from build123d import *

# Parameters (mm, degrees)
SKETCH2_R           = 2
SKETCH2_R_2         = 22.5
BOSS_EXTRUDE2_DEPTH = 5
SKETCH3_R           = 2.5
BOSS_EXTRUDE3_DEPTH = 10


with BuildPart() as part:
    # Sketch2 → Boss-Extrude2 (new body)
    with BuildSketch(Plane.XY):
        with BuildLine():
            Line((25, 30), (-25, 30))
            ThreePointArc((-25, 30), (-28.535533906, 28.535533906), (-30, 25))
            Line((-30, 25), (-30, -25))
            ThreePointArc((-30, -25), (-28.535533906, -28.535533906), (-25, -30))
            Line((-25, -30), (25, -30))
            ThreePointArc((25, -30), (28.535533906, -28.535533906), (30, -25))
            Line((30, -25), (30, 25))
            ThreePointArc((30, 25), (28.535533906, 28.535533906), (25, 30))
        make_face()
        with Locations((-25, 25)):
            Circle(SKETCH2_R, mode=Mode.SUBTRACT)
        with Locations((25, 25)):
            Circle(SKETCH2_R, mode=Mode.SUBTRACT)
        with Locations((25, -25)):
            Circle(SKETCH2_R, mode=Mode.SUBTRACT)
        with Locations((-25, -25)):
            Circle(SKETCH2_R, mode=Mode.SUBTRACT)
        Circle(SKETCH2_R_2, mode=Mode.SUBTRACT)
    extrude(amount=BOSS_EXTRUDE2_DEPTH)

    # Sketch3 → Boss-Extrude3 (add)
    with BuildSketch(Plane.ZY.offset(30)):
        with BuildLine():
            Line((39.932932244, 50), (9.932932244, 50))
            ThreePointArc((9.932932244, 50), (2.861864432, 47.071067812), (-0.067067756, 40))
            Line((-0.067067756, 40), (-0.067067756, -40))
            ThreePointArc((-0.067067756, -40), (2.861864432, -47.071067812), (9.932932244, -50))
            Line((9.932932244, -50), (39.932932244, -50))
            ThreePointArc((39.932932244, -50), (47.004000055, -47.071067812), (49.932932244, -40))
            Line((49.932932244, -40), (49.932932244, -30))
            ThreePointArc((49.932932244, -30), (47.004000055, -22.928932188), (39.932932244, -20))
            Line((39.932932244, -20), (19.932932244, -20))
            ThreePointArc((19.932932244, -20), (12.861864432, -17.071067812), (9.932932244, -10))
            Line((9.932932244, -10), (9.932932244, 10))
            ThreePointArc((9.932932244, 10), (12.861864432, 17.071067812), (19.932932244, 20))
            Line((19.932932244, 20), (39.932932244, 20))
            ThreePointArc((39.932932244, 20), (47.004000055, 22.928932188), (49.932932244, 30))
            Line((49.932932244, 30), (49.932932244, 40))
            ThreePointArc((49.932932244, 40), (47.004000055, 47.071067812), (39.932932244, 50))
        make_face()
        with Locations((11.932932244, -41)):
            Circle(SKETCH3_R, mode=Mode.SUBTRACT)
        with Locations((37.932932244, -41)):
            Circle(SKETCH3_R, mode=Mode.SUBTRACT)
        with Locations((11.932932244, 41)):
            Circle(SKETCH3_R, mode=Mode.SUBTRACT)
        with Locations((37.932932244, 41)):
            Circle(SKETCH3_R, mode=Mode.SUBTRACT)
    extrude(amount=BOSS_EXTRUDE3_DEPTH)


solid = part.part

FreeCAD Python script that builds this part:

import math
import FreeCAD as App
import Part
import Sketcher
Q = App.Units.Quantity

doc = App.newDocument("Part")
body = doc.addObject("PartDesign::Body", "Body")

# Sketch on XY plane
sketch1 = body.newObject("Sketcher::SketchObject", "Sketch")
sketch1.AttachmentSupport = (doc.getObject("XY_Plane"), [""])
sketch1.MapMode = "FlatFace"
sketch1.addGeometry([
    Part.LineSegment(App.Vector(25, 30, 0), App.Vector(-25, 30, 0)),  # 0
    Part.ArcOfCircle(Part.Circle(App.Vector(-25, 25, 0), App.Vector(0, 0, 1), 5), math.radians(90), math.radians(180)),  # 1
    Part.LineSegment(App.Vector(-30, 25, 0), App.Vector(-30, -25, 0)),  # 2
    Part.ArcOfCircle(Part.Circle(App.Vector(-25, -25, 0), App.Vector(0, 0, 1), 5), math.radians(180), math.radians(270)),  # 3
    Part.LineSegment(App.Vector(-25, -30, 0), App.Vector(25, -30, 0)),  # 4
    Part.ArcOfCircle(Part.Circle(App.Vector(25, -25, 0), App.Vector(0, 0, 1), 5), math.radians(-90), math.radians(0)),  # 5
    Part.LineSegment(App.Vector(30, -25, 0), App.Vector(30, 25, 0)),  # 6
    Part.ArcOfCircle(Part.Circle(App.Vector(25, 25, 0), App.Vector(0, 0, 1), 5), math.radians(0), math.radians(90)),  # 7
    Part.Circle(App.Vector(-25, -25, 0), App.Vector(0, 0, 1), 2),  # 8
    Part.Circle(App.Vector(25, -25, 0), App.Vector(0, 0, 1), 2),  # 9
    Part.Circle(App.Vector(-25, 25, 0), App.Vector(0, 0, 1), 2),  # 10
    Part.Circle(App.Vector(0, 0, 0), App.Vector(0, 0, 1), 22.5),  # 11
    Part.Circle(App.Vector(25, 25, 0), App.Vector(0, 0, 1), 2),  # 12
], False)
sketch1.addConstraint([
    Sketcher.Constraint("Tangent", 0, 2, 1, 1),
    Sketcher.Constraint("Tangent", 1, 2, 2, 1),
    Sketcher.Constraint("Tangent", 2, 2, 3, 1),
    Sketcher.Constraint("Tangent", 3, 2, 4, 1),
    Sketcher.Constraint("Tangent", 4, 2, 5, 1),
    Sketcher.Constraint("Tangent", 5, 2, 6, 1),
    Sketcher.Constraint("Tangent", 6, 2, 7, 1),
    Sketcher.Constraint("Tangent", 7, 2, 0, 1),
    Sketcher.Constraint("Horizontal", 0),
    Sketcher.Constraint("Vertical", 2),
    Sketcher.Constraint("Horizontal", 4),
    Sketcher.Constraint("Vertical", 6),
    Sketcher.Constraint("Coincident", 11, 3, -1, 1),
    Sketcher.Constraint("Coincident", 8, 3, 3, 3),
    Sketcher.Constraint("Coincident", 9, 3, 5, 3),
    Sketcher.Constraint("Coincident", 10, 3, 1, 3),
    Sketcher.Constraint("Coincident", 12, 3, 7, 3),
    Sketcher.Constraint("Equal", 1, 3),
    Sketcher.Constraint("Equal", 3, 5),
    Sketcher.Constraint("Equal", 5, 7),
    Sketcher.Constraint("Equal", 8, 9),
    Sketcher.Constraint("Equal", 9, 10),
    Sketcher.Constraint("Equal", 10, 12),
    Sketcher.Constraint("Symmetric", 1, 3, 5, 3, -1, 1),
    Sketcher.Constraint("Equal", 4, 2),
    Sketcher.Constraint("Diameter", 8, Q("4 mm")),
    Sketcher.Constraint("Diameter", 11, Q("45 mm")),
    Sketcher.Constraint("Radius", 1, Q("5 mm")),
    Sketcher.Constraint("DistanceX", 0, 2, 0, 1, Q("50 mm")),
])
pad1 = body.newObject("PartDesign::Pad", "Pad")
pad1.Profile = sketch1
pad1.Length = 5

# Sketch on YZ plane
sketch2 = body.newObject("Sketcher::SketchObject", "Sketch001")
sketch2.AttachmentSupport = (doc.getObject("YZ_Plane"), [""])
sketch2.MapMode = "FlatFace"
sketch2.AttachmentOffset = App.Placement(App.Vector(0, 0, -30), App.Rotation())
sketch2.addGeometry([
    Part.LineSegment(App.Vector(50, 39.9, 0), App.Vector(50, 9.9, 0)),  # 0
    Part.ArcOfCircle(Part.Circle(App.Vector(40, 9.9, 0), App.Vector(0, 0, 1), 10), math.radians(-90), math.radians(0)),  # 1
    Part.LineSegment(App.Vector(40, -0.1, 0), App.Vector(-40, -0.1, 0)),  # 2
    Part.ArcOfCircle(Part.Circle(App.Vector(-40, 9.9, 0), App.Vector(0, 0, 1), 10), math.radians(180), math.radians(270)),  # 3
    Part.LineSegment(App.Vector(-50, 9.9, 0), App.Vector(-50, 39.9, 0)),  # 4
    Part.ArcOfCircle(Part.Circle(App.Vector(-40, 39.9, 0), App.Vector(0, 0, 1), 10), math.radians(90), math.radians(180)),  # 5
    Part.LineSegment(App.Vector(-40, 49.9, 0), App.Vector(-30, 49.9, 0)),  # 6
    Part.ArcOfCircle(Part.Circle(App.Vector(-30, 39.9, 0), App.Vector(0, 0, 1), 10), math.radians(0), math.radians(90)),  # 7
    Part.LineSegment(App.Vector(-20, 39.9, 0), App.Vector(-20, 19.9, 0)),  # 8
    Part.ArcOfCircle(Part.Circle(App.Vector(-10, 19.9, 0), App.Vector(0, 0, 1), 10), math.radians(180), math.radians(270)),  # 9
    Part.LineSegment(App.Vector(-10, 9.9, 0), App.Vector(10, 9.9, 0)),  # 10
    Part.ArcOfCircle(Part.Circle(App.Vector(10, 19.9, 0), App.Vector(0, 0, 1), 10), math.radians(-90), math.radians(0)),  # 11
    Part.LineSegment(App.Vector(20, 19.9, 0), App.Vector(20, 39.9, 0)),  # 12
    Part.ArcOfCircle(Part.Circle(App.Vector(30, 39.9, 0), App.Vector(0, 0, 1), 10), math.radians(90), math.radians(180)),  # 13
    Part.LineSegment(App.Vector(30, 49.9, 0), App.Vector(40, 49.9, 0)),  # 14
    Part.ArcOfCircle(Part.Circle(App.Vector(40, 39.9, 0), App.Vector(0, 0, 1), 10), math.radians(0), math.radians(90)),  # 15
    Part.Circle(App.Vector(-41, 11.9, 0), App.Vector(0, 0, 1), 2.5),  # 16
    Part.Circle(App.Vector(-41, 37.9, 0), App.Vector(0, 0, 1), 2.5),  # 17
    Part.Circle(App.Vector(41, 11.9, 0), App.Vector(0, 0, 1), 2.5),  # 18
    Part.Circle(App.Vector(41, 37.9, 0), App.Vector(0, 0, 1), 2.5),  # 19
], False)
sketch2.addConstraint([
    Sketcher.Constraint("Tangent", 0, 2, 1, 2),
    Sketcher.Constraint("Tangent", 1, 1, 2, 1),
    Sketcher.Constraint("Tangent", 2, 2, 3, 2),
    Sketcher.Constraint("Tangent", 3, 1, 4, 1),
    Sketcher.Constraint("Tangent", 4, 2, 5, 2),
    Sketcher.Constraint("Tangent", 5, 1, 6, 1),
    Sketcher.Constraint("Tangent", 6, 2, 7, 2),
    Sketcher.Constraint("Tangent", 7, 1, 8, 1),
    Sketcher.Constraint("Tangent", 8, 2, 9, 1),
    Sketcher.Constraint("Tangent", 9, 2, 10, 1),
    Sketcher.Constraint("Tangent", 10, 2, 11, 1),
    Sketcher.Constraint("Tangent", 11, 2, 12, 1),
    Sketcher.Constraint("Tangent", 12, 2, 13, 2),
    Sketcher.Constraint("Tangent", 13, 1, 14, 1),
    Sketcher.Constraint("Tangent", 14, 2, 15, 2),
    Sketcher.Constraint("Tangent", 15, 1, 0, 1),
    Sketcher.Constraint("Vertical", 0),
    Sketcher.Constraint("Horizontal", 2),
    Sketcher.Constraint("Vertical", 4),
    Sketcher.Constraint("Horizontal", 6),
    Sketcher.Constraint("Vertical", 8),
    Sketcher.Constraint("Horizontal", 10),
    Sketcher.Constraint("Vertical", 12),
    Sketcher.Constraint("Horizontal", 14),
    Sketcher.Constraint("Equal", 1, 3),
    Sketcher.Constraint("Equal", 3, 5),
    Sketcher.Constraint("Equal", 5, 7),
    Sketcher.Constraint("Equal", 7, 9),
    Sketcher.Constraint("Equal", 9, 11),
    Sketcher.Constraint("Equal", 11, 13),
    Sketcher.Constraint("Equal", 13, 15),
    Sketcher.Constraint("Equal", 16, 17),
    Sketcher.Constraint("Equal", 17, 18),
    Sketcher.Constraint("Equal", 18, 19),
    Sketcher.Constraint("Symmetric", 7, 3, 13, 3, -2),
    Sketcher.Constraint("Symmetric", 16, 3, 18, 3, -2),
    Sketcher.Constraint("Symmetric", 17, 3, 19, 3, -2),
    Sketcher.Constraint("Horizontal", 3, 1, 9, 2),
    Sketcher.Constraint("Vertical", 16, 3, 17, 3),
    Sketcher.Constraint("Equal", 6, 14),
    Sketcher.Constraint("Equal", 10, 8),
    Sketcher.Constraint("Diameter", 16, Q("5 mm")),
    Sketcher.Constraint("Radius", 1, Q("10 mm")),
    Sketcher.Constraint("DistanceX", 2, 2, 2, 1, Q("80 mm")),
    Sketcher.Constraint("DistanceX", 6, 1, 6, 2, Q("10 mm")),
    Sketcher.Constraint("DistanceX", 16, 3, -1, 1, Q("41 mm")),
    Sketcher.Constraint("DistanceY", 3, 3, 16, 3, Q("2 mm")),
    Sketcher.Constraint("DistanceY", 17, 3, 5, 3, Q("2 mm")),
    Sketcher.Constraint("DistanceY", -1, 1, 1, 3, Q("9.932932 mm")),
])
pad2 = body.newObject("PartDesign::Pad", "Pad001")
pad2.Profile = sketch2
pad2.Length = 10
pad2.Reversed = True

doc.recompute()
